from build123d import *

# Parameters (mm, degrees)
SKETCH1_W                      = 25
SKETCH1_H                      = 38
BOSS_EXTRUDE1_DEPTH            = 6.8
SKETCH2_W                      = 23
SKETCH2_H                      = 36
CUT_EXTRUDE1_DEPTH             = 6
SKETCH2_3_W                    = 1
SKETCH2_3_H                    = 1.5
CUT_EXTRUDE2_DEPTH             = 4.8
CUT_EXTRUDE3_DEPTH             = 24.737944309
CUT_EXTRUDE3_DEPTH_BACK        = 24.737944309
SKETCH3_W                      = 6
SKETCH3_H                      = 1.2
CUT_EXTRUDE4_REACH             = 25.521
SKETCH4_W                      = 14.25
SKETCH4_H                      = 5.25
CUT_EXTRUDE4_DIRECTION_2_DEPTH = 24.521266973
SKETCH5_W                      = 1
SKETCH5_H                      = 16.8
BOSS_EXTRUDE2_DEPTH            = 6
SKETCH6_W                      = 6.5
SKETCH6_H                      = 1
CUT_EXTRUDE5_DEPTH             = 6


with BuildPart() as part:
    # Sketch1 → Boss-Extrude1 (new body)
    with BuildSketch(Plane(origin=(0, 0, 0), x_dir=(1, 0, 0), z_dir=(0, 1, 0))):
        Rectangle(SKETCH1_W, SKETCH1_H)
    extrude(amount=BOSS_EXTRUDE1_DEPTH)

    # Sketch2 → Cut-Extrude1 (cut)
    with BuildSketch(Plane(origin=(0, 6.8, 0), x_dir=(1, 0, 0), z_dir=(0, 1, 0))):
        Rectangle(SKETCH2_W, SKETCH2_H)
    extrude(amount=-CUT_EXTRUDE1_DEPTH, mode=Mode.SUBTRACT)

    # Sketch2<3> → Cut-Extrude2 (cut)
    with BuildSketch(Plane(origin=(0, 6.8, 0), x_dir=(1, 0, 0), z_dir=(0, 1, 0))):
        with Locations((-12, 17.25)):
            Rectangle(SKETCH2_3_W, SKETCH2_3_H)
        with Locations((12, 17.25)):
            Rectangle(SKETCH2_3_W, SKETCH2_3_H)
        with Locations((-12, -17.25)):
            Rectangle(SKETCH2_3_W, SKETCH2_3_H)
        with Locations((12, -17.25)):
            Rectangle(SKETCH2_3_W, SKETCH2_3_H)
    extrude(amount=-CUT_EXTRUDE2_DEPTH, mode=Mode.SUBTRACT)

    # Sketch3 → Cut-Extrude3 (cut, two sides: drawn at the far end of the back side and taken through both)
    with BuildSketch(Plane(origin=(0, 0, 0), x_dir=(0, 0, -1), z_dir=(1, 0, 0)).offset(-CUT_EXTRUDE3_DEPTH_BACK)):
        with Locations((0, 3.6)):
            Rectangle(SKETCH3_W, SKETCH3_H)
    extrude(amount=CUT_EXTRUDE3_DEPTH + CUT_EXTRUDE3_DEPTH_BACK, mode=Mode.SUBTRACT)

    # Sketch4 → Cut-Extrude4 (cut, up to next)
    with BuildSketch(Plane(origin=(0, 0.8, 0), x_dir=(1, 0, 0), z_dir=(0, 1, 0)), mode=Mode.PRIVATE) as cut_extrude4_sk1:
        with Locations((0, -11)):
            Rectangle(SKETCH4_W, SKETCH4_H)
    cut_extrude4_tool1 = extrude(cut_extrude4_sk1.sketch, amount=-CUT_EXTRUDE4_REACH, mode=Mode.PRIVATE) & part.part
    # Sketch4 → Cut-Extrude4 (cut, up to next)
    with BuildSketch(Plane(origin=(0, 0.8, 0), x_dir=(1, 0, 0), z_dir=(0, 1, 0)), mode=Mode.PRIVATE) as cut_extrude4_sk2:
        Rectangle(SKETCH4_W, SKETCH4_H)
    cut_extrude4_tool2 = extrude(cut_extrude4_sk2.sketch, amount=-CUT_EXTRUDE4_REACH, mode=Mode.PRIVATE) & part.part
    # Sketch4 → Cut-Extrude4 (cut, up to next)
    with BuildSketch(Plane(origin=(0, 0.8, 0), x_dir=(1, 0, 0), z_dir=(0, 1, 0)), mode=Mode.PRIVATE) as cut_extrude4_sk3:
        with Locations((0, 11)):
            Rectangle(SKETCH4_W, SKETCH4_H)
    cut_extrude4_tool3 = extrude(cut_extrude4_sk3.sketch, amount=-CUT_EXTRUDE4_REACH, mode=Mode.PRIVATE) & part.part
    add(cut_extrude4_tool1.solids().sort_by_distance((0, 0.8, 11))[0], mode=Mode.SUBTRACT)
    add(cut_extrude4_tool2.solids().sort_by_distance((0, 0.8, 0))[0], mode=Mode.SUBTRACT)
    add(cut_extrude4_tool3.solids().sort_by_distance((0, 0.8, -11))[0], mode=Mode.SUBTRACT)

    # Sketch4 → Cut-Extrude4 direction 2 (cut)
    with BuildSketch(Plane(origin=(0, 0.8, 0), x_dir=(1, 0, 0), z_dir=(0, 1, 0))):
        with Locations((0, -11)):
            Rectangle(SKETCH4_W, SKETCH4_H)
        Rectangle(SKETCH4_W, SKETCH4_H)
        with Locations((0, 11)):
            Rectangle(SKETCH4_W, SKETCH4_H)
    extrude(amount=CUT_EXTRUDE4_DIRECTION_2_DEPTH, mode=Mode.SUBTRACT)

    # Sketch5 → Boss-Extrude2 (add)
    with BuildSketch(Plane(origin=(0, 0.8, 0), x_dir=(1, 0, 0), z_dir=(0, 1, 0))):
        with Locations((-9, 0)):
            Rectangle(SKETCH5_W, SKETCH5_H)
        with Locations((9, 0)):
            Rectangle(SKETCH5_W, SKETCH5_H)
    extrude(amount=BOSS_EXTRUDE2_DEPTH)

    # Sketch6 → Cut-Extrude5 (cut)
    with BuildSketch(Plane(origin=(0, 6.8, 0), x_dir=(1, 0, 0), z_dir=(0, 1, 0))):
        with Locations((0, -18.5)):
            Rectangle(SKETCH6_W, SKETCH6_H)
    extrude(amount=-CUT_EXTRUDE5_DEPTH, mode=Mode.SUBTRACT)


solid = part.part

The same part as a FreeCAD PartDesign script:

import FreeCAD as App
import Part
import Sketcher
from FreeCAD import Vector


def add_polygon(sketch, points):
    """Adds a closed chain of lines whose ends are joined by coincident constraints."""
    first, n = sketch.GeometryCount, len(points)
    for a, b in zip(points, points[1:] + points[:1]):
        sketch.addGeometry(Part.LineSegment(App.Vector(*a, 0), App.Vector(*b, 0)), False)
    for i in range(n):
        sketch.addConstraint(Sketcher.Constraint("Coincident", first + i, 2, first + (i + 1) % n, 1))

doc = App.newDocument("Part")
body = doc.addObject("PartDesign::Body", "Body")

sketch1 = body.newObject("Sketcher::SketchObject", "Sketch")
sketch1.AttachmentSupport = (doc.getObject("XZ_Plane"), [""])
sketch1.MapMode = "FlatFace"
add_polygon(sketch1, [(-12, -19), (-12, 19), (12, 19), (12, -19)])
sketch1.addConstraint([
    Sketcher.Constraint("Vertical", 0),
    Sketcher.Constraint("Horizontal", 1),
    Sketcher.Constraint("Vertical", 2),
    Sketcher.Constraint("Horizontal", 3),
    Sketcher.Constraint("Symmetric", 0, 2, 2, 2, -1, 1),
    Sketcher.Constraint("DistanceX", 1, 1, 1, 2, 25.0),
    Sketcher.Constraint("DistanceY", 0, 1, 0, 2, 38.0),
])
pad1 = body.newObject("PartDesign::Pad", "Pad")
pad1.Profile = sketch1
pad1.Length = 6.8
pad1.Reversed = True

sketch2 = body.newObject("Sketcher::SketchObject", "Sketch001")
sketch2.AttachmentSupport = (doc.getObject("XZ_Plane"), [""])
sketch2.MapMode = "FlatFace"
sketch2.AttachmentOffset = App.Placement(Vector(0, 0, -6.8), App.Rotation())
add_polygon(sketch2, [(-12, -18), (-12, 18), (12, 18), (12, -18)])
sketch2.addConstraint([
    Sketcher.Constraint("Vertical", 0),
    Sketcher.Constraint("Horizontal", 1),
    Sketcher.Constraint("Vertical", 2),
    Sketcher.Constraint("Horizontal", 3),
    Sketcher.Constraint("Symmetric", 0, 2, 2, 2, -1, 1),
    Sketcher.Constraint("DistanceX", 1, 1, 1, 2, 23.0),
    Sketcher.Constraint("DistanceY", 0, 1, 0, 2, 36.0),
])
pocket1 = body.newObject("PartDesign::Pocket", "Pocket")
pocket1.Profile = sketch2
pocket1.Length = 6
pocket1.Reversed = True

sketch3 = body.newObject("Sketcher::SketchObject", "Sketch002")
sketch3.AttachmentSupport = (doc.getObject("XZ_Plane"), [""])
sketch3.MapMode = "FlatFace"
sketch3.AttachmentOffset = App.Placement(Vector(0, 0, -6.8), App.Rotation())
add_polygon(sketch3, [(-12.5, -18), (-12.5, -16.5), (-11.5, -16.5), (-11.5, -18)])
add_polygon(sketch3, [(11.5, -18), (11.5, -16.5), (12.5, -16.5), (12.5, -18)])
add_polygon(sketch3, [(-12.5, 16.5), (-12.5, 18), (-11.5, 18), (-11.5, 16.5)])
add_polygon(sketch3, [(11.5, 16.5), (11.5, 18), (12.5, 18), (12.5, 16.5)])
sketch3.addConstraint([
    Sketcher.Constraint("Vertical", 0),
    Sketcher.Constraint("Horizontal", 1),
    Sketcher.Constraint("Vertical", 2),
    Sketcher.Constraint("Horizontal", 3),
    Sketcher.Constraint("Vertical", 4),
    Sketcher.Constraint("Horizontal", 5),
    Sketcher.Constraint("Vertical", 6),
    Sketcher.Constraint("Horizontal", 7),
    Sketcher.Constraint("Vertical", 8),
    Sketcher.Constraint("Horizontal", 9),
    Sketcher.Constraint("Vertical", 10),
    Sketcher.Constraint("Horizontal", 11),
    Sketcher.Constraint("Vertical", 12),
    Sketcher.Constraint("Horizontal", 13),
    Sketcher.Constraint("Vertical", 14),
    Sketcher.Constraint("Horizontal", 15),
    Sketcher.Constraint("Symmetric", 6, 2, 8, 2, -1, 1),
    Sketcher.Constraint("Symmetric", 4, 2, 10, 2, -1, 1),
    Sketcher.Constraint("Symmetric", 2, 2, 12, 2, -1, 1),
    Sketcher.Constraint("Symmetric", 0, 2, 14, 2, -1, 1),
    Sketcher.Constraint("Symmetric", 1, 2, 4, 2, -2),
    Sketcher.Constraint("Symmetric", 3, 2, 6, 2, -2),
    Sketcher.Constraint("DistanceX", 1, 1, 1, 2, 1.0),
    Sketcher.Constraint("DistanceY", 0, 1, 0, 2, 1.5),
    Sketcher.Constraint("DistanceY", 2, 2, -1, 1, 18.0),
    Sketcher.Constraint("DistanceX", 1, 2, 4, 2, 23.0),
])
pocket2 = body.newObject("PartDesign::Pocket", "Pocket001")
pocket2.Profile = sketch3
pocket2.Length = 4.8
pocket2.Reversed = True

sketch4 = body.newObject("Sketcher::SketchObject", "Sketch003")
sketch4.AttachmentSupport = (doc.getObject("YZ_Plane"), [""])
sketch4.MapMode = "FlatFace"
add_polygon(sketch4, [(4.2, 3), (3, 3), (3, -3), (4.2, -3)])
sketch4.addConstraint([
    Sketcher.Constraint("Horizontal", 0),
    Sketcher.Constraint("Vertical", 1),
    Sketcher.Constraint("Horizontal", 2),
    Sketcher.Constraint("Vertical", 3),
    Sketcher.Constraint("DistanceY", 1, 2, 1, 1, 6.0),
    Sketcher.Constraint("DistanceX", 0, 2, 0, 1, 1.2),
    Sketcher.Constraint("DistanceX", -1, 1, 0, 2, 3.0),
    Sketcher.Constraint("DistanceY", -1, 1, 0, 2, 3.0),
])
pocket3 = body.newObject("PartDesign::Pocket", "Pocket002")
pocket3.Profile = sketch4
pocket3.Type = "ThroughAll"
pocket3.Midplane = True

sketch5 = body.newObject("Sketcher::SketchObject", "Sketch004")
sketch5.AttachmentSupport = (doc.getObject("XZ_Plane"), [""])
sketch5.MapMode = "FlatFace"
sketch5.AttachmentOffset = App.Placement(Vector(0, 0, -0.8), App.Rotation())
add_polygon(sketch5, [(-7, 8), (-7, 14), (7, 14), (7, 8)])
sketch5.addConstraint([
    Sketcher.Constraint("Vertical", 0),
    Sketcher.Constraint("Horizontal", 1),
    Sketcher.Constraint("Vertical", 2),
    Sketcher.Constraint("Horizontal", 3),
    Sketcher.Constraint("DistanceX", 1, 1, 1, 2, 14.25),
    Sketcher.Constraint("DistanceY", 0, 1, 0, 2, 5.25),
    Sketcher.Constraint("DistanceX", 0, 2, -1, 1, 7.125),
    Sketcher.Constraint("DistanceY", -1, 1, 0, 2, 13.625),
])
pocket4 = body.newObject("PartDesign::Pocket", "Pocket003")
pocket4.Profile = sketch5
pocket4.Type = "UpToFirst"
pocket4.Reversed = True

sketch6 = body.newObject("Sketcher::SketchObject", "Sketch005")
sketch6.AttachmentSupport = (doc.getObject("XZ_Plane"), [""])
sketch6.MapMode = "FlatFace"
sketch6.AttachmentOffset = App.Placement(Vector(0, 0, -0.8), App.Rotation())
add_polygon(sketch6, [(-7, -3), (-7, 3), (7, 3), (7, -3)])
sketch6.addConstraint([
    Sketcher.Constraint("Vertical", 0),
    Sketcher.Constraint("Horizontal", 1),
    Sketcher.Constraint("Vertical", 2),
    Sketcher.Constraint("Horizontal", 3),
    Sketcher.Constraint("Symmetric", 0, 2, 2, 2, -1, 1),
    Sketcher.Constraint("DistanceX", 1, 1, 1, 2, 14.25),
    Sketcher.Constraint("DistanceY", 0, 1, 0, 2, 5.25),
])
pocket5 = body.newObject("PartDesign::Pocket", "Pocket004")
pocket5.Profile = sketch6
pocket5.Type = "UpToFirst"
pocket5.Reversed = True

sketch7 = body.newObject("Sketcher::SketchObject", "Sketch006")
sketch7.AttachmentSupport = (doc.getObject("XZ_Plane"), [""])
sketch7.MapMode = "FlatFace"
sketch7.AttachmentOffset = App.Placement(Vector(0, 0, -0.8), App.Rotation())
add_polygon(sketch7, [(-7, -14), (-7, -8), (7, -8), (7, -14)])
sketch7.addConstraint([
    Sketcher.Constraint("Vertical", 0),
    Sketcher.Constraint("Horizontal", 1),
    Sketcher.Constraint("Vertical", 2),
    Sketcher.Constraint("Horizontal", 3),
    Sketcher.Constraint("DistanceX", 1, 1, 1, 2, 14.25),
    Sketcher.Constraint("DistanceY", 0, 1, 0, 2, 5.25),
    Sketcher.Constraint("DistanceX", 0, 2, -1, 1, 7.125),
    Sketcher.Constraint("DistanceY", 0, 2, -1, 1, 8.375),
])
pocket6 = body.newObject("PartDesign::Pocket", "Pocket005")
pocket6.Profile = sketch7
pocket6.Type = "UpToFirst"
pocket6.Reversed = True

sketch8 = body.newObject("Sketcher::SketchObject", "Sketch007")
sketch8.AttachmentSupport = (doc.getObject("XZ_Plane"), [""])
sketch8.MapMode = "FlatFace"
sketch8.AttachmentOffset = App.Placement(Vector(0, 0, -0.8), App.Rotation())
add_polygon(sketch8, [(-7, 8), (-7, 14), (7, 14), (7, 8)])
add_polygon(sketch8, [(-7, -3), (-7, 3), (7, 3), (7, -3)])
add_polygon(sketch8, [(-7, -14), (-7, -8), (7, -8), (7, -14)])
sketch8.addConstraint([
    Sketcher.Constraint("Vertical", 0),
    Sketcher.Constraint("Horizontal", 1),
    Sketcher.Constraint("Vertical", 2),
    Sketcher.Constraint("Horizontal", 3),
    Sketcher.Constraint("Vertical", 4),
    Sketcher.Constraint("Horizontal", 5),
    Sketcher.Constraint("Vertical", 6),
    Sketcher.Constraint("Horizontal", 7),
    Sketcher.Constraint("Vertical", 8),
    Sketcher.Constraint("Horizontal", 9),
    Sketcher.Constraint("Vertical", 10),
    Sketcher.Constraint("Horizontal", 11),
    Sketcher.Constraint("Symmetric", 4, 2, 6, 2, -1, 1),
    Sketcher.Constraint("Symmetric", 2, 2, 8, 2, -1, 1),
    Sketcher.Constraint("Symmetric", 0, 2, 10, 2, -1, 1),
    Sketcher.Constraint("Vertical", 3, 2, 4, 2),
    Sketcher.Constraint("Vertical", 2, 2, 5, 2),
    Sketcher.Constraint("Equal", 2, 4),
    Sketcher.Constraint("DistanceY", 4, 2, 0, 2, 11.0),
    Sketcher.Constraint("DistanceX", 1, 1, 1, 2, 14.25),
    Sketcher.Constraint("DistanceY", 0, 1, 0, 2, 5.25),
])
pocket7 = body.newObject("PartDesign::Pocket", "Pocket006")
pocket7.Profile = sketch8
pocket7.Length = 24.521267

sketch9 = body.newObject("Sketcher::SketchObject", "Sketch008")
sketch9.AttachmentSupport = (doc.getObject("XZ_Plane"), [""])
sketch9.MapMode = "FlatFace"
sketch9.AttachmentOffset = App.Placement(Vector(0, 0, -0.8), App.Rotation())
add_polygon(sketch9, [(-9.5, -8.4), (-9.5, 8.4), (-8.5, 8.4), (-8.5, -8.4)])
add_polygon(sketch9, [(8.5, -8.4), (8.5, 8.4), (9.5, 8.4), (9.5, -8.4)])
sketch9.addConstraint([
    Sketcher.Constraint("Vertical", 0),
    Sketcher.Constraint("Horizontal", 1),
    Sketcher.Constraint("Vertical", 2),
    Sketcher.Constraint("Horizontal", 3),
    Sketcher.Constraint("Vertical", 4),
    Sketcher.Constraint("Horizontal", 5),
    Sketcher.Constraint("Vertical", 6),
    Sketcher.Constraint("Horizontal", 7),
    Sketcher.Constraint("Symmetric", 2, 2, 4, 2, -1, 1),
    Sketcher.Constraint("Symmetric", 0, 2, 6, 2, -1, 1),
    Sketcher.Constraint("Horizontal", 1, 2, 4, 2),
    Sketcher.Constraint("DistanceX", 1, 1, 1, 2, 1.0),
    Sketcher.Constraint("DistanceY", 0, 1, 0, 2, 16.8),
    Sketcher.Constraint("DistanceX", 1, 2, 4, 2, 17.0),
])
pad2 = body.newObject("PartDesign::Pad", "Pad001")
pad2.Profile = sketch9
pad2.Length = 6
pad2.Reversed = True

sketch10 = body.newObject("Sketcher::SketchObject", "Sketch009")
sketch10.AttachmentSupport = (doc.getObject("XZ_Plane"), [""])
sketch10.MapMode = "FlatFace"
sketch10.AttachmentOffset = App.Placement(Vector(0, 0, -6.8), App.Rotation())
add_polygon(sketch10, [(-3.2, 18), (-3.2, 19), (3.2, 19), (3.2, 18)])
sketch10.addConstraint([
    Sketcher.Constraint("Vertical", 0),
    Sketcher.Constraint("Horizontal", 1),
    Sketcher.Constraint("Vertical", 2),
    Sketcher.Constraint("Horizontal", 3),
    Sketcher.Constraint("DistanceY", 0, 1, 0, 2, 1.0),
    Sketcher.Constraint("DistanceX", 1, 1, 1, 2, 6.5),
    Sketcher.Constraint("DistanceY", -1, 1, 0, 2, 19.0),
    Sketcher.Constraint("DistanceX", 0, 2, -1, 1, 3.25),
])
pocket8 = body.newObject("PartDesign::Pocket", "Pocket007")
pocket8.Profile = sketch10
pocket8.Length = 6
pocket8.Reversed = True

doc.recompute()
